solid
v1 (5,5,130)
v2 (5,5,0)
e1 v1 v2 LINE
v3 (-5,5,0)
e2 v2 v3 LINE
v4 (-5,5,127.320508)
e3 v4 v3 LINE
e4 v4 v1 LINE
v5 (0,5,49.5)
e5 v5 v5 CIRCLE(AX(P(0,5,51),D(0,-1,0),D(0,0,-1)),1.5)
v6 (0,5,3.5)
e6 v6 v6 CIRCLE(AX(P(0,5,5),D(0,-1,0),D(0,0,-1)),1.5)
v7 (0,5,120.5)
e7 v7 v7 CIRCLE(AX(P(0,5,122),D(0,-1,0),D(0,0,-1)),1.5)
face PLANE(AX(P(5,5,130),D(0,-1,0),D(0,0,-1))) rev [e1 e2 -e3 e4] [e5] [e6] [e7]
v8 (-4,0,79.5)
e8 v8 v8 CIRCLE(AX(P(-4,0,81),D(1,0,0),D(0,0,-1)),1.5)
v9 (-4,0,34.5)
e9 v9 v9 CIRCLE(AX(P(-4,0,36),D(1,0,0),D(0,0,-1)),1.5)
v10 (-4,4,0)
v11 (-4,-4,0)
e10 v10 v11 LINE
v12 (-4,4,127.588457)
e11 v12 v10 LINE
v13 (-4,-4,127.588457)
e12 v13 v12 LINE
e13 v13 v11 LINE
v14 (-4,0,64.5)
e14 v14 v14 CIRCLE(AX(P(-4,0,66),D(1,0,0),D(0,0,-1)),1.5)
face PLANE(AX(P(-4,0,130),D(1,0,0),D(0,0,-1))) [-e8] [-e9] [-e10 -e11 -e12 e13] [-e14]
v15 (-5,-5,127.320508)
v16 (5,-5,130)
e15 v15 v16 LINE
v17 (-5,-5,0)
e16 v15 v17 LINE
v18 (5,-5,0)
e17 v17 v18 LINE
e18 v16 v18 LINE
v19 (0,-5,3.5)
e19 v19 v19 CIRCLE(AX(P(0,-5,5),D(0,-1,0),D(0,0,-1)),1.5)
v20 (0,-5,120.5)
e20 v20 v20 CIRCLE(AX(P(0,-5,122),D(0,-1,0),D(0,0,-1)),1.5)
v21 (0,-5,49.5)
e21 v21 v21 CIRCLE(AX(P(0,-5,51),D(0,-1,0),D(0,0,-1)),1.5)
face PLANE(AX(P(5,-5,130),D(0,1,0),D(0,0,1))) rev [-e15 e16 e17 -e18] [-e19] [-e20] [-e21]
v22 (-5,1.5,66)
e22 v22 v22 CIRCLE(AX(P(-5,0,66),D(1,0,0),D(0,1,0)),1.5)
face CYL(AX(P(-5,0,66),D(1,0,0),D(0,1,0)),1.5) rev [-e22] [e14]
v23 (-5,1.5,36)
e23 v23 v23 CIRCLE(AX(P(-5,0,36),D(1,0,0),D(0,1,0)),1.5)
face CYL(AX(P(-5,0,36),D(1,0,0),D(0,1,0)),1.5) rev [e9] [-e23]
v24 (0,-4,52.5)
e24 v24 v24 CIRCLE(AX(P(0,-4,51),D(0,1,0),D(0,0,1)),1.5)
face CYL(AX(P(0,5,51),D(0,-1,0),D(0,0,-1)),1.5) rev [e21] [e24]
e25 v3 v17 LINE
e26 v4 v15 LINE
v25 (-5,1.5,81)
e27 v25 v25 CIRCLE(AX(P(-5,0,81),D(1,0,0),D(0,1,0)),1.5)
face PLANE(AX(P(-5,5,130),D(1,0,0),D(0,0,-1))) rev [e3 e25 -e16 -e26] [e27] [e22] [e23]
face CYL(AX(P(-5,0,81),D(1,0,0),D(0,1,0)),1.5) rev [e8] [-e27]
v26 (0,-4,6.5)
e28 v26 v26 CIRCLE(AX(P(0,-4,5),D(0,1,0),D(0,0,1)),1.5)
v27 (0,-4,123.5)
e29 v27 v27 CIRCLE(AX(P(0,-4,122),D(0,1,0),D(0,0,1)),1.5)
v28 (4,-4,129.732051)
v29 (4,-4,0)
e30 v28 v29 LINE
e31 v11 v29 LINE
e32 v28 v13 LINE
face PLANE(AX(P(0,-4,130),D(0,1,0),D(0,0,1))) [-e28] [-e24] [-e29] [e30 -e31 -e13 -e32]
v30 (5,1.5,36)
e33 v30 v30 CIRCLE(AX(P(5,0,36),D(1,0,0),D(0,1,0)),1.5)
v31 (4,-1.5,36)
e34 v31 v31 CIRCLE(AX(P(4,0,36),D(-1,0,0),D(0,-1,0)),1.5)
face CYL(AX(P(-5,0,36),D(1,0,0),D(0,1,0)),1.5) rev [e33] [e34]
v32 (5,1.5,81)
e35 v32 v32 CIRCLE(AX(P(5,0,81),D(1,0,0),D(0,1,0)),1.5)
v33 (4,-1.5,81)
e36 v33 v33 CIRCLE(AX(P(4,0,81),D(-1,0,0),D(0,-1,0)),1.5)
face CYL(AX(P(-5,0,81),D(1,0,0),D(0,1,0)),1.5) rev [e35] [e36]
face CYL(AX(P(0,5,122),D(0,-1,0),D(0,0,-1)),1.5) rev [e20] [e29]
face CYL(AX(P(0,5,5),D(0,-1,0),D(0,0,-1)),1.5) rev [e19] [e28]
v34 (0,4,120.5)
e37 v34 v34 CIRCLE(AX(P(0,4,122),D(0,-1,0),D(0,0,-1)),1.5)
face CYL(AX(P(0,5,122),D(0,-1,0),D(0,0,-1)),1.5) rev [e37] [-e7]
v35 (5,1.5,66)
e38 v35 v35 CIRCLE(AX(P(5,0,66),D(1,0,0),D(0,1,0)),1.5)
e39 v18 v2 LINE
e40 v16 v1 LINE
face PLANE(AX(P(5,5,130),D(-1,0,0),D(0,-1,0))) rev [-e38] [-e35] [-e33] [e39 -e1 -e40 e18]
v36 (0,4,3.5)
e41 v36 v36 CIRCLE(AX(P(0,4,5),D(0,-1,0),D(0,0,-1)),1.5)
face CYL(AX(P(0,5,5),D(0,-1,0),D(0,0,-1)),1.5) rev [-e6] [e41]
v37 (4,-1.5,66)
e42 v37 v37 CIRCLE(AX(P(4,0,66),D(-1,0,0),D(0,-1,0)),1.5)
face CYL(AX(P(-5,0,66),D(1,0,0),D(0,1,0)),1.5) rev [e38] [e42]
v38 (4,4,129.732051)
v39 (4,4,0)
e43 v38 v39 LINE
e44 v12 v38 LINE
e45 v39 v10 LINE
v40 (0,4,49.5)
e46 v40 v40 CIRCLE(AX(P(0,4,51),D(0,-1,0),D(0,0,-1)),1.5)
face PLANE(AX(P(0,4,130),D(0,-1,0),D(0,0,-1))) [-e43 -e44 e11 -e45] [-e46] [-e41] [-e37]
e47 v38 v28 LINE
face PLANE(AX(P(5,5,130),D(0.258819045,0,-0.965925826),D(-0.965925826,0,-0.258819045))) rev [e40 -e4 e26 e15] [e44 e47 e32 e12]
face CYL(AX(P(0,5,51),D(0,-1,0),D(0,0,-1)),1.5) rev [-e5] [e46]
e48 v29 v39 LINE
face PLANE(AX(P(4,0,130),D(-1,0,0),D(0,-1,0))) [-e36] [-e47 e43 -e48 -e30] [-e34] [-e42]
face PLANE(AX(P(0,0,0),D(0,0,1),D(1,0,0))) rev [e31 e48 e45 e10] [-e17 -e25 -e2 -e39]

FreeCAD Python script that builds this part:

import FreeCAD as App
import Part
import Sketcher
Q = App.Units.Quantity

doc = App.newDocument("Part")
body = doc.addObject("PartDesign::Body", "Body")

# Sketch on XY plane
sketch1 = body.newObject("Sketcher::SketchObject", "Sketch")
sketch1.AttachmentSupport = (doc.getObject("XY_Plane"), [""])
sketch1.MapMode = "FlatFace"
sketch1.addGeometry(Part.LineSegment(App.Vector(-5, 5, 0), App.Vector(-5, -5, 0)), False)
sketch1.addGeometry(Part.LineSegment(App.Vector(-5, -5, 0), App.Vector(5, -5, 0)), False)
sketch1.addGeometry(Part.LineSegment(App.Vector(5, -5, 0), App.Vector(5, 5, 0)), False)
sketch1.addGeometry(Part.LineSegment(App.Vector(5, 5, 0), App.Vector(-5, 5, 0)), False)
sketch1.addGeometry(Part.LineSegment(App.Vector(4, -4, 0), App.Vector(-4, -4, 0)), False)
sketch1.addGeometry(Part.LineSegment(App.Vector(-4, -4, 0), App.Vector(-4, 4, 0)), False)
sketch1.addGeometry(Part.LineSegment(App.Vector(-4, 4, 0), App.Vector(4, 4, 0)), False)
sketch1.addGeometry(Part.LineSegment(App.Vector(4, 4, 0), App.Vector(4, -4, 0)), False)
sketch1.addConstraint(Sketcher.Constraint("Coincident", 0, 2, 1, 1))
sketch1.addConstraint(Sketcher.Constraint("Coincident", 1, 2, 2, 1))
sketch1.addConstraint(Sketcher.Constraint("Coincident", 2, 2, 3, 1))
sketch1.addConstraint(Sketcher.Constraint("Coincident", 3, 2, 0, 1))
sketch1.addConstraint(Sketcher.Constraint("Coincident", 4, 2, 5, 1))
sketch1.addConstraint(Sketcher.Constraint("Coincident", 5, 2, 6, 1))
sketch1.addConstraint(Sketcher.Constraint("Coincident", 6, 2, 7, 1))
sketch1.addConstraint(Sketcher.Constraint("Coincident", 7, 2, 4, 1))
sketch1.addConstraint(Sketcher.Constraint("Vertical", 0))
sketch1.addConstraint(Sketcher.Constraint("Horizontal", 1))
sketch1.addConstraint(Sketcher.Constraint("Vertical", 2))
sketch1.addConstraint(Sketcher.Constraint("Horizontal", 3))
sketch1.addConstraint(Sketcher.Constraint("Horizontal", 4))
sketch1.addConstraint(Sketcher.Constraint("Vertical", 5))
sketch1.addConstraint(Sketcher.Constraint("Horizontal", 6))
sketch1.addConstraint(Sketcher.Constraint("Vertical", 7))
sketch1.addConstraint(Sketcher.Constraint("Symmetric", 0, 2, 2, 2, -1, 1))
sketch1.addConstraint(Sketcher.Constraint("Symmetric", 4, 2, 6, 2, -1, 1))
sketch1.addConstraint(Sketcher.Constraint("Equal", 3, 0))
sketch1.addConstraint(Sketcher.Constraint("Equal", 6, 5))
sketch1.addConstraint(Sketcher.Constraint("DistanceX", 1, 1, 1, 2, Q("10 mm")))
sketch1.addConstraint(Sketcher.Constraint("DistanceX", 4, 2, 4, 1, Q("8 mm")))
pad1 = body.newObject("PartDesign::Pad", "Pad")
pad1.Profile = sketch1
pad1.Length = 130

# Sketch on XZ plane
sketch2 = body.newObject("Sketcher::SketchObject", "Sketch001")
sketch2.AttachmentSupport = (doc.getObject("XZ_Plane"), [""])
sketch2.MapMode = "FlatFace"
sketch2.AttachmentOffset = App.Placement(App.Vector(0, 0, 5), App.Rotation())
sketch2.addGeometry(Part.Circle(App.Vector(0, 51, 0), App.Vector(0, 0, 1), 1.5), False)
sketch2.addGeometry(Part.Circle(App.Vector(0, 122, 0), App.Vector(0, 0, 1), 1.5), False)
sketch2.addGeometry(Part.Circle(App.Vector(0, 5, 0), App.Vector(0, 0, 1), 1.5), False)
sketch2.addGeometry(Part.LineSegment(App.Vector(-5, 127.3, 0), App.Vector(5, 130, 0)), False)
sketch2.addGeometry(Part.LineSegment(App.Vector(5, 130, 0), App.Vector(-5, 130, 0)), False)
sketch2.addGeometry(Part.LineSegment(App.Vector(-5, 130, 0), App.Vector(-5, 127.3, 0)), False)
sketch2.addConstraint(Sketcher.Constraint("Coincident", 3, 2, 4, 1))
sketch2.addConstraint(Sketcher.Constraint("Coincident", 4, 2, 5, 1))
sketch2.addConstraint(Sketcher.Constraint("Coincident", 5, 2, 3, 1))
sketch2.addConstraint(Sketcher.Constraint("Horizontal", 4))
sketch2.addConstraint(Sketcher.Constraint("Vertical", 5))
sketch2.addConstraint(Sketcher.Constraint("Equal", 0, 1))
sketch2.addConstraint(Sketcher.Constraint("Equal", 1, 2))
sketch2.addConstraint(Sketcher.Constraint("PointOnObject", 0, 3, -2))
sketch2.addConstraint(Sketcher.Constraint("PointOnObject", 1, 3, -2))
sketch2.addConstraint(Sketcher.Constraint("PointOnObject", 2, 3, -2))
sketch2.addConstraint(Sketcher.Constraint("Diameter", 0, Q("3 mm")))
sketch2.addConstraint(Sketcher.Constraint("DistanceX", 4, 2, 4, 1, Q("10 mm")))
sketch2.addConstraint(Sketcher.Constraint("Angle", 3, Q("15 deg")))
sketch2.addConstraint(Sketcher.Constraint("DistanceY", -1, 1, 0, 3, Q("51 mm")))
sketch2.addConstraint(Sketcher.Constraint("DistanceY", -1, 1, 1, 3, Q("122 mm")))
sketch2.addConstraint(Sketcher.Constraint("DistanceY", -1, 1, 2, 3, Q("5 mm")))
sketch2.addConstraint(Sketcher.Constraint("DistanceX", -1, 1, 3, 2, Q("5 mm")))
sketch2.addConstraint(Sketcher.Constraint("DistanceY", -1, 1, 3, 2, Q("130 mm")))
pocket1 = body.newObject("PartDesign::Pocket", "Pocket")
pocket1.Profile = sketch2
pocket1.Type = "ThroughAll"

# Sketch on YZ plane
sketch3 = body.newObject("Sketcher::SketchObject", "Sketch002")
sketch3.AttachmentSupport = (doc.getObject("YZ_Plane"), [""])
sketch3.MapMode = "FlatFace"
sketch3.AttachmentOffset = App.Placement(App.Vector(0, 0, 5), App.Rotation())
sketch3.addGeometry(Part.Circle(App.Vector(0, 36, 0), App.Vector(0, 0, 1), 1.5), False)
sketch3.addGeometry(Part.Circle(App.Vector(0, 66, 0), App.Vector(0, 0, 1), 1.5), False)
sketch3.addGeometry(Part.Circle(App.Vector(0, 81, 0), App.Vector(0, 0, 1), 1.5), False)
sketch3.addConstraint(Sketcher.Constraint("Equal", 0, 1))
sketch3.addConstraint(Sketcher.Constraint("Equal", 1, 2))
sketch3.addConstraint(Sketcher.Constraint("PointOnObject", 0, 3, -2))
sketch3.addConstraint(Sketcher.Constraint("PointOnObject", 1, 3, -2))
sketch3.addConstraint(Sketcher.Constraint("PointOnObject", 2, 3, -2))
sketch3.addConstraint(Sketcher.Constraint("Diameter", 0, Q("3 mm")))
sketch3.addConstraint(Sketcher.Constraint("DistanceY", -1, 1, 0, 3, Q("36 mm")))
sketch3.addConstraint(Sketcher.Constraint("DistanceY", -1, 1, 1, 3, Q("66 mm")))
sketch3.addConstraint(Sketcher.Constraint("DistanceY", -1, 1, 2, 3, Q("81 mm")))
pocket2 = body.newObject("PartDesign::Pocket", "Pocket001")
pocket2.Profile = sketch3
pocket2.Type = "ThroughAll"

doc.recompute()
